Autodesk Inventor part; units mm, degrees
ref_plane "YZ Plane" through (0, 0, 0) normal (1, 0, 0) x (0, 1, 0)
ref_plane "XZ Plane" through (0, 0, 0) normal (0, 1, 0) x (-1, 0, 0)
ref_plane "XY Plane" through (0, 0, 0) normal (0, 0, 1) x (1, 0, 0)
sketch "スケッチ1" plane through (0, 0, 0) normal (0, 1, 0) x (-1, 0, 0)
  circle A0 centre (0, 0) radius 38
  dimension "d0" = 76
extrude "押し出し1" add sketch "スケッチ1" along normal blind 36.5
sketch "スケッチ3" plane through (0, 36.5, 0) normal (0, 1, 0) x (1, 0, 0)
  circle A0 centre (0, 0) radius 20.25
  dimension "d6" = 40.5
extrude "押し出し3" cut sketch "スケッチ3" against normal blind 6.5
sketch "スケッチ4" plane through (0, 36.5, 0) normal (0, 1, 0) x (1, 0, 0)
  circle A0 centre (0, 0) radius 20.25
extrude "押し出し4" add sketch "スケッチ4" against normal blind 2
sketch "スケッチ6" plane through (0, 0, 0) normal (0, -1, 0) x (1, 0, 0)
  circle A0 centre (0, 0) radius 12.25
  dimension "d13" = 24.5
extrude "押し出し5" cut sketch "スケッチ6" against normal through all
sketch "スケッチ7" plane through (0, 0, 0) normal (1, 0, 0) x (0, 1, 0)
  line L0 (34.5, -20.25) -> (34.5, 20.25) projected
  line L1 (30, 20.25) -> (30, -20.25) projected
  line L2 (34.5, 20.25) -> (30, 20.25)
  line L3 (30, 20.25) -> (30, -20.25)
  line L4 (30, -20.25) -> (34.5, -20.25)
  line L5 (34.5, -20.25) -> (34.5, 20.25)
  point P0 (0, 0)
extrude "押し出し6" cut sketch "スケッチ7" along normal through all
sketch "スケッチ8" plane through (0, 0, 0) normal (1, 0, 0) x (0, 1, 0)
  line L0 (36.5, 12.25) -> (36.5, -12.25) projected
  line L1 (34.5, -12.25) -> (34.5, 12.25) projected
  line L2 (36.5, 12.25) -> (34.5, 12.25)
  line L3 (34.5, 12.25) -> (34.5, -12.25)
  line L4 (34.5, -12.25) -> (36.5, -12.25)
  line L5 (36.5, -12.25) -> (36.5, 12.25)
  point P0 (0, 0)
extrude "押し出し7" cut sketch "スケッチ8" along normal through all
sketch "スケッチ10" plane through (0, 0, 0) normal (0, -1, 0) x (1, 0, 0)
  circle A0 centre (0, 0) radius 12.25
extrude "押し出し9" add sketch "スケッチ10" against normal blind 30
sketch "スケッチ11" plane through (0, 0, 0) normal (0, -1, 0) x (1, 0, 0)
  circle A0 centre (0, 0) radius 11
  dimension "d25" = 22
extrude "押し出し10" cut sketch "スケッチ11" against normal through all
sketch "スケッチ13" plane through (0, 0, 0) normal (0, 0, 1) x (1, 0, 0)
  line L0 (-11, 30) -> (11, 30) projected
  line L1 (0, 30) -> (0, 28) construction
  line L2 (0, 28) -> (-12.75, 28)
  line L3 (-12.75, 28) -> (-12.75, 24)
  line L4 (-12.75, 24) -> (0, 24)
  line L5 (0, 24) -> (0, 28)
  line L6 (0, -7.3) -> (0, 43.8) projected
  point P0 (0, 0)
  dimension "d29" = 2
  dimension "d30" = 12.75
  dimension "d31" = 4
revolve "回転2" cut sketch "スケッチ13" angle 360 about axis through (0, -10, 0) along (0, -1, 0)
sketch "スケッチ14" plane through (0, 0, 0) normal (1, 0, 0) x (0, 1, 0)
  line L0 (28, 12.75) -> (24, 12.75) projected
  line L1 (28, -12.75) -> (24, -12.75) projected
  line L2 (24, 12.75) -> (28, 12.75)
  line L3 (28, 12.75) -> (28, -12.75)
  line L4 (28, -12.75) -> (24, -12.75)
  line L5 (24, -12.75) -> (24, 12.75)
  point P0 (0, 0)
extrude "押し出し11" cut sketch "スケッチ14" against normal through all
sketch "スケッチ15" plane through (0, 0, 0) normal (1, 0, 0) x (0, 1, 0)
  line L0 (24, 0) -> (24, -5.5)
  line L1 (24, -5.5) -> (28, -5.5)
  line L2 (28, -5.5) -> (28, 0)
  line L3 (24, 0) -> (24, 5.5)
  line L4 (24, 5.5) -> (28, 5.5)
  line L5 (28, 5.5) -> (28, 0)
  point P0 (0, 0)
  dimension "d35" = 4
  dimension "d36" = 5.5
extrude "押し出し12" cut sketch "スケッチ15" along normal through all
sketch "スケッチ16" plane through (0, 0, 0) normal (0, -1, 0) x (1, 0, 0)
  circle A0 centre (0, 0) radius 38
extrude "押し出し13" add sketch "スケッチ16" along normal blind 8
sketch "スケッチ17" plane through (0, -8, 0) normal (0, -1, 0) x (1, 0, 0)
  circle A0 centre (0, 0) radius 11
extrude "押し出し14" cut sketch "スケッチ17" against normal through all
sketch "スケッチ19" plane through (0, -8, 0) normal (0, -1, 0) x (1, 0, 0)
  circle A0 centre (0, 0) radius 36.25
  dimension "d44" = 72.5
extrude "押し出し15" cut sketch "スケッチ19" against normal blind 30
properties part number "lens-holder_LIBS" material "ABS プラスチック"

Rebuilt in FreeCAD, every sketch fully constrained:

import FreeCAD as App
import Part
import Sketcher

V = App.Vector
Q = App.Units.Quantity

doc = App.newDocument("Part")
body = doc.addObject("PartDesign::Body", "Body")

# Sketch on XZ plane
sketch1 = doc.addObject("Sketcher::SketchObject", "Sketch")
body.addObject(sketch1)
sketch1.AttachmentSupport = (doc.XZ_Plane, [""])
sketch1.MapMode = "FlatFace"
sketch1.addGeometry(Part.Circle(V(0, 0, 0), V(0, 0, 1), 38), False)
sketch1.addConstraint([
    Sketcher.Constraint("Coincident", 0, 3, -1, 1),
    Sketcher.Constraint("Diameter", 0, Q("76 mm")),
])
pad1 = doc.addObject("PartDesign::Pad", "Pad")
body.addObject(pad1)
pad1.Profile = sketch1
pad1.Length = 36.5
pad1.Reversed = True

# Sketch on XZ plane
sketch2 = doc.addObject("Sketcher::SketchObject", "Sketch001")
body.addObject(sketch2)
sketch2.AttachmentSupport = (doc.XZ_Plane, [""])
sketch2.MapMode = "FlatFace"
sketch2.AttachmentOffset = App.Placement(V(0, 0, -36.5), App.Rotation())
sketch2.addGeometry(Part.Circle(V(0, 0, 0), V(0, 0, 1), 20.25), False)
sketch2.addConstraint([
    Sketcher.Constraint("Coincident", 0, 3, -1, 1),
    Sketcher.Constraint("Diameter", 0, Q("40.5 mm")),
])
pocket1 = doc.addObject("PartDesign::Pocket", "Pocket")
body.addObject(pocket1)
pocket1.Profile = sketch2
pocket1.Length = 6.5
pocket1.Reversed = True

# Sketch on XZ plane
sketch3 = doc.addObject("Sketcher::SketchObject", "Sketch002")
body.addObject(sketch3)
sketch3.AttachmentSupport = (doc.XZ_Plane, [""])
sketch3.MapMode = "FlatFace"
sketch3.AttachmentOffset = App.Placement(V(0, 0, -36.5), App.Rotation())
sketch3.addGeometry(Part.Circle(V(0, 0, 0), V(0, 0, 1), 20.25), False)
sketch3.addConstraint([
    Sketcher.Constraint("Coincident", 0, 3, -1, 1),
    Sketcher.Constraint("Diameter", 0, Q("40.5 mm")),
])
pad2 = doc.addObject("PartDesign::Pad", "Pad001")
body.addObject(pad2)
pad2.Profile = sketch3
pad2.Length = 2

# Sketch on XZ plane
sketch4 = doc.addObject("Sketcher::SketchObject", "Sketch003")
body.addObject(sketch4)
sketch4.AttachmentSupport = (doc.XZ_Plane, [""])
sketch4.MapMode = "FlatFace"
sketch4.addGeometry(Part.Circle(V(0, 0, 0), V(0, 0, 1), 12.25), False)
sketch4.addConstraint([
    Sketcher.Constraint("Coincident", 0, 3, -1, 1),
    Sketcher.Constraint("Diameter", 0, Q("24.5 mm")),
])
pocket2 = doc.addObject("PartDesign::Pocket", "Pocket001")
body.addObject(pocket2)
pocket2.Profile = sketch4
pocket2.Type = "ThroughAll"

# Sketch on YZ plane
sketch5 = doc.addObject("Sketcher::SketchObject", "Sketch004")
body.addObject(sketch5)
sketch5.AttachmentSupport = (doc.YZ_Plane, [""])
sketch5.MapMode = "FlatFace"
sketch5.addGeometry([
    Part.LineSegment(V(30, -20.25, 0), V(34.5, -20.25, 0)),
    Part.LineSegment(V(34.5, -20.25, 0), V(34.5, 20.25, 0)),
    Part.LineSegment(V(34.5, 20.25, 0), V(30, 20.25, 0)),
    Part.LineSegment(V(30, 20.25, 0), V(30, -20.25, 0)),
], False)
sketch5.addConstraint([
    Sketcher.Constraint("Coincident", 0, 2, 1, 1),
    Sketcher.Constraint("Coincident", 1, 2, 2, 1),
    Sketcher.Constraint("Coincident", 2, 2, 3, 1),
    Sketcher.Constraint("Coincident", 3, 2, 0, 1),
    Sketcher.Constraint("Horizontal", 0),
    Sketcher.Constraint("Vertical", 1),
    Sketcher.Constraint("Horizontal", 2),
    Sketcher.Constraint("Vertical", 3),
    Sketcher.Constraint("DistanceX", 0, 1, 0, 2, Q("4.5 mm")),
    Sketcher.Constraint("DistanceY", 1, 1, 1, 2, Q("40.5 mm")),
    Sketcher.Constraint("DistanceX", -1, 1, 2, 2, Q("30 mm")),
    Sketcher.Constraint("DistanceY", 0, 2, -1, 1, Q("20.25 mm")),
])
pocket3 = doc.addObject("PartDesign::Pocket", "Pocket002")
body.addObject(pocket3)
pocket3.Profile = sketch5
pocket3.Type = "ThroughAll"
pocket3.Reversed = True

# Sketch on YZ plane
sketch6 = doc.addObject("Sketcher::SketchObject", "Sketch005")
body.addObject(sketch6)
sketch6.AttachmentSupport = (doc.YZ_Plane, [""])
sketch6.MapMode = "FlatFace"
sketch6.addGeometry([
    Part.LineSegment(V(36.5, -12.25, 0), V(36.5, 12.25, 0)),
    Part.LineSegment(V(36.5, 12.25, 0), V(34.5, 12.25, 0)),
    Part.LineSegment(V(34.5, 12.25, 0), V(34.5, -12.25, 0)),
    Part.LineSegment(V(34.5, -12.25, 0), V(36.5, -12.25, 0)),
], False)
sketch6.addConstraint([
    Sketcher.Constraint("Coincident", 0, 2, 1, 1),
    Sketcher.Constraint("Coincident", 1, 2, 2, 1),
    Sketcher.Constraint("Coincident", 2, 2, 3, 1),
    Sketcher.Constraint("Coincident", 3, 2, 0, 1),
    Sketcher.Constraint("Vertical", 0),
    Sketcher.Constraint("Horizontal", 1),
    Sketcher.Constraint("Vertical", 2),
    Sketcher.Constraint("Horizontal", 3),
    Sketcher.Constraint("DistanceX", 1, 2, 1, 1, Q("2 mm")),
    Sketcher.Constraint("DistanceY", 0, 1, 0, 2, Q("24.5 mm")),
    Sketcher.Constraint("DistanceX", -1, 1, 0, 2, Q("36.5 mm")),
    Sketcher.Constraint("DistanceY", -1, 1, 0, 2, Q("12.25 mm")),
])
pocket4 = doc.addObject("PartDesign::Pocket", "Pocket003")
body.addObject(pocket4)
pocket4.Profile = sketch6
pocket4.Type = "ThroughAll"
pocket4.Reversed = True

# Sketch on XZ plane
sketch7 = doc.addObject("Sketcher::SketchObject", "Sketch006")
body.addObject(sketch7)
sketch7.AttachmentSupport = (doc.XZ_Plane, [""])
sketch7.MapMode = "FlatFace"
sketch7.addGeometry(Part.Circle(V(0, 0, 0), V(0, 0, 1), 12.25), False)
sketch7.addConstraint([
    Sketcher.Constraint("Coincident", 0, 3, -1, 1),
    Sketcher.Constraint("Diameter", 0, Q("24.5 mm")),
])
pad3 = doc.addObject("PartDesign::Pad", "Pad002")
body.addObject(pad3)
pad3.Profile = sketch7
pad3.Length = 30
pad3.Reversed = True

# Sketch on XZ plane
sketch8 = doc.addObject("Sketcher::SketchObject", "Sketch007")
body.addObject(sketch8)
sketch8.AttachmentSupport = (doc.XZ_Plane, [""])
sketch8.MapMode = "FlatFace"
sketch8.addGeometry(Part.Circle(V(0, 0, 0), V(0, 0, 1), 11), False)
sketch8.addConstraint([
    Sketcher.Constraint("Coincident", 0, 3, -1, 1),
    Sketcher.Constraint("Diameter", 0, Q("22 mm")),
])
pocket5 = doc.addObject("PartDesign::Pocket", "Pocket004")
body.addObject(pocket5)
pocket5.Profile = sketch8
pocket5.Type = "ThroughAll"

# Sketch on XY plane
sketch9 = doc.addObject("Sketcher::SketchObject", "Sketch008")
body.addObject(sketch9)
sketch9.AttachmentSupport = (doc.XY_Plane, [""])
sketch9.MapMode = "FlatFace"
sketch9.addGeometry([
    Part.LineSegment(V(0, 24, 0), V(0, 28, 0)),
    Part.LineSegment(V(0, 28, 0), V(-12.75, 28, 0)),
    Part.LineSegment(V(-12.75, 28, 0), V(-12.75, 24, 0)),
    Part.LineSegment(V(-12.75, 24, 0), V(0, 24, 0)),
], False)
sketch9.addConstraint([
    Sketcher.Constraint("Coincident", 0, 2, 1, 1),
    Sketcher.Constraint("Coincident", 1, 2, 2, 1),
    Sketcher.Constraint("Coincident", 2, 2, 3, 1),
    Sketcher.Constraint("Coincident", 3, 2, 0, 1),
    Sketcher.Constraint("Vertical", 0),
    Sketcher.Constraint("Horizontal", 1),
    Sketcher.Constraint("Vertical", 2),
    Sketcher.Constraint("Horizontal", 3),
    Sketcher.Constraint("PointOnObject", 0, 2, -2),
    Sketcher.Constraint("DistanceY", 0, 1, 0, 2, Q("4 mm")),
    Sketcher.Constraint("DistanceX", 1, 2, 1, 1, Q("12.75 mm")),
    Sketcher.Constraint("DistanceY", -1, 1, 0, 2, Q("28 mm")),
])
groove = doc.addObject("PartDesign::Groove", "Groove")
body.addObject(groove)
groove.Profile = sketch9
groove.ReferenceAxis = (sketch9, ["V_Axis"])
groove.Angle = 360

# Sketch on YZ plane
sketch10 = doc.addObject("Sketcher::SketchObject", "Sketch009")
body.addObject(sketch10)
sketch10.AttachmentSupport = (doc.YZ_Plane, [""])
sketch10.MapMode = "FlatFace"
sketch10.addGeometry([
    Part.LineSegment(V(28, -12.75, 0), V(28, 12.75, 0)),
    Part.LineSegment(V(28, 12.75, 0), V(24, 12.75, 0)),
    Part.LineSegment(V(24, 12.75, 0), V(24, -12.75, 0)),
    Part.LineSegment(V(24, -12.75, 0), V(28, -12.75, 0)),
], False)
sketch10.addConstraint([
    Sketcher.Constraint("Coincident", 0, 2, 1, 1),
    Sketcher.Constraint("Coincident", 1, 2, 2, 1),
    Sketcher.Constraint("Coincident", 2, 2, 3, 1),
    Sketcher.Constraint("Coincident", 3, 2, 0, 1),
    Sketcher.Constraint("Vertical", 0),
    Sketcher.Constraint("Horizontal", 1),
    Sketcher.Constraint("Vertical", 2),
    Sketcher.Constraint("Horizontal", 3),
    Sketcher.Constraint("DistanceX", 1, 2, 1, 1, Q("4 mm")),
    Sketcher.Constraint("DistanceY", 0, 1, 0, 2, Q("25.5 mm")),
    Sketcher.Constraint("DistanceX", -1, 1, 0, 2, Q("28 mm")),
    Sketcher.Constraint("DistanceY", -1, 1, 0, 2, Q("12.75 mm")),
])
pocket6 = doc.addObject("PartDesign::Pocket", "Pocket005")
body.addObject(pocket6)
pocket6.Profile = sketch10
pocket6.Type = "ThroughAll"

# Sketch on YZ plane
sketch11 = doc.addObject("Sketcher::SketchObject", "Sketch010")
body.addObject(sketch11)
sketch11.AttachmentSupport = (doc.YZ_Plane, [""])
sketch11.MapMode = "FlatFace"
sketch11.addGeometry([
    Part.LineSegment(V(24, 5.5, 0), V(24, -5.5, 0)),
    Part.LineSegment(V(24, -5.5, 0), V(28, -5.5, 0)),
    Part.LineSegment(V(28, -5.5, 0), V(28, 5.5, 0)),
    Part.LineSegment(V(28, 5.5, 0), V(24, 5.5, 0)),
], False)
sketch11.addConstraint([
    Sketcher.Constraint("Coincident", 0, 2, 1, 1),
    Sketcher.Constraint("Coincident", 1, 2, 2, 1),
    Sketcher.Constraint("Coincident", 2, 2, 3, 1),
    Sketcher.Constraint("Coincident", 3, 2, 0, 1),
    Sketcher.Constraint("Vertical", 0),
    Sketcher.Constraint("Horizontal", 1),
    Sketcher.Constraint("Vertical", 2),
    Sketcher.Constraint("Horizontal", 3),
    Sketcher.Constraint("DistanceX", 1, 1, 1, 2, Q("4 mm")),
    Sketcher.Constraint("DistanceY", 0, 2, -1, 1, Q("5.5 mm")),
    Sketcher.Constraint("DistanceY", -1, 1, 2, 2, Q("5.5 mm")),
    Sketcher.Constraint("DistanceX", -1, 1, 0, 2, Q("24 mm")),
])
pocket7 = doc.addObject("PartDesign::Pocket", "Pocket006")
body.addObject(pocket7)
pocket7.Profile = sketch11
pocket7.Type = "ThroughAll"
pocket7.Reversed = True

# Sketch on XZ plane
sketch12 = doc.addObject("Sketcher::SketchObject", "Sketch011")
body.addObject(sketch12)
sketch12.AttachmentSupport = (doc.XZ_Plane, [""])
sketch12.MapMode = "FlatFace"
sketch12.addGeometry(Part.Circle(V(0, 0, 0), V(0, 0, 1), 38), False)
sketch12.addConstraint([
    Sketcher.Constraint("Coincident", 0, 3, -1, 1),
    Sketcher.Constraint("Diameter", 0, Q("76 mm")),
])
pad4 = doc.addObject("PartDesign::Pad", "Pad003")
body.addObject(pad4)
pad4.Profile = sketch12
pad4.Length = 8

# Sketch on XZ plane
sketch13 = doc.addObject("Sketcher::SketchObject", "Sketch012")
body.addObject(sketch13)
sketch13.AttachmentSupport = (doc.XZ_Plane, [""])
sketch13.MapMode = "FlatFace"
sketch13.AttachmentOffset = App.Placement(V(0, 0, 8), App.Rotation())
sketch13.addGeometry(Part.Circle(V(0, 0, 0), V(0, 0, 1), 11), False)
sketch13.addConstraint([
    Sketcher.Constraint("Coincident", 0, 3, -1, 1),
    Sketcher.Constraint("Diameter", 0, Q("22 mm")),
])
pocket8 = doc.addObject("PartDesign::Pocket", "Pocket007")
body.addObject(pocket8)
pocket8.Profile = sketch13
pocket8.Type = "ThroughAll"

# Sketch on XZ plane
sketch14 = doc.addObject("Sketcher::SketchObject", "Sketch013")
body.addObject(sketch14)
sketch14.AttachmentSupport = (doc.XZ_Plane, [""])
sketch14.MapMode = "FlatFace"
sketch14.AttachmentOffset = App.Placement(V(0, 0, 8), App.Rotation())
sketch14.addGeometry(Part.Circle(V(0, 0, 0), V(0, 0, 1), 36.25), False)
sketch14.addConstraint([
    Sketcher.Constraint("Coincident", 0, 3, -1, 1),
    Sketcher.Constraint("Diameter", 0, Q("72.5 mm")),
])
pocket9 = doc.addObject("PartDesign::Pocket", "Pocket008")
body.addObject(pocket9)
pocket9.Profile = sketch14
pocket9.Length = 30

doc.recompute()
